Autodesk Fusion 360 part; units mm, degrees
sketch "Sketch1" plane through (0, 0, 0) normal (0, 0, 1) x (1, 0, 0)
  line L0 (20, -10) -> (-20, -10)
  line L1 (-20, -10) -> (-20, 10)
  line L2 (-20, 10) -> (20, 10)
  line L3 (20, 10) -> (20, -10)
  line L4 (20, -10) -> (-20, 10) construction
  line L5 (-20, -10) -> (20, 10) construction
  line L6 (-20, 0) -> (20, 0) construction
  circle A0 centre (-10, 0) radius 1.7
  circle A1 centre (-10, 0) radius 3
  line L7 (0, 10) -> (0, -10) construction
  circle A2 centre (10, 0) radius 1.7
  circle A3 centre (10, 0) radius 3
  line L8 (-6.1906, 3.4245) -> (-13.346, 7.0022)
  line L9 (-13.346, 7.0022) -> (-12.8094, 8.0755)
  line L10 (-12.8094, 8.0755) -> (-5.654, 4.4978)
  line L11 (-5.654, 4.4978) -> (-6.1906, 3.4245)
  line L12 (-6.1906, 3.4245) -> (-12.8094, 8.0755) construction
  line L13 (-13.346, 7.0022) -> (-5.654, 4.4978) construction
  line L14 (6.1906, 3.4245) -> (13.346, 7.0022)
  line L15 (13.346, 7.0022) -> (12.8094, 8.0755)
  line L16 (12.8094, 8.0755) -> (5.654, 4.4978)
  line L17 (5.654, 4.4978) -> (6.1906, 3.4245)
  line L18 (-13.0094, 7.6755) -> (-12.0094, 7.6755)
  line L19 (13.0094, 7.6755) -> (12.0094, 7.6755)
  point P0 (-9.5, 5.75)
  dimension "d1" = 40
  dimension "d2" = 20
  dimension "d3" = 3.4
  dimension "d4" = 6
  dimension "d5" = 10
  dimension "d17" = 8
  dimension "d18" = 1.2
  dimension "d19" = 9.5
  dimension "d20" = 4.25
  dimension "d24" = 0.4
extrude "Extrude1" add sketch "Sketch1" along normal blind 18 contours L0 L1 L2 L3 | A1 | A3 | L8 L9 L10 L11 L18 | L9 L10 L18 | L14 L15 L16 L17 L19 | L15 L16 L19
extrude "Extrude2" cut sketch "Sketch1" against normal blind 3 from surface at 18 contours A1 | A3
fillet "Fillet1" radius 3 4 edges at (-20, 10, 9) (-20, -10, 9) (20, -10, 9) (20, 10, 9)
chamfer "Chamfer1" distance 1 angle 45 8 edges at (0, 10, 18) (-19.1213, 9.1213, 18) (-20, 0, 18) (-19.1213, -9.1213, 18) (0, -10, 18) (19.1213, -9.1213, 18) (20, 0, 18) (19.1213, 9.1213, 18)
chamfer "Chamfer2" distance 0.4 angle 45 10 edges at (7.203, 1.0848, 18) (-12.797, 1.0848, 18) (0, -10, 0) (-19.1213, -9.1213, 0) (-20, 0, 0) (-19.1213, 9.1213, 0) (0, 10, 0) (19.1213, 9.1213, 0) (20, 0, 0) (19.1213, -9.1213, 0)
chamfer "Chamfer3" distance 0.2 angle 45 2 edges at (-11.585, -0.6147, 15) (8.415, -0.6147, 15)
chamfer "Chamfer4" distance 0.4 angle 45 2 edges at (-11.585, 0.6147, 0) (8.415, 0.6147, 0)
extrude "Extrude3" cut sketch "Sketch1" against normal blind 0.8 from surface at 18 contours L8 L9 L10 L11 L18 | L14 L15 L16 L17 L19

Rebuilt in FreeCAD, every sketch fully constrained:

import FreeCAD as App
import Part
import Sketcher

V = App.Vector


def edges_at(feature, points):
    """Names of the edges that pass closest to the given points."""
    edges = feature.Shape.Edges
    near = lambda p: min(range(len(edges)), key=lambda i: edges[i].distToShape(Part.Vertex(*p))[0])
    return sorted({f"Edge{near(p) + 1}" for p in points})


def add_polygon(sketch, points):
    """Adds a closed chain of lines whose ends are joined by coincident constraints."""
    first, n = sketch.GeometryCount, len(points)
    for a, b in zip(points, points[1:] + points[:1]):
        sketch.addGeometry(Part.LineSegment(App.Vector(*a, 0), App.Vector(*b, 0)), False)
    for i in range(n):
        sketch.addConstraint(Sketcher.Constraint("Coincident", first + i, 2, first + (i + 1) % n, 1))

doc = App.newDocument("Part")
body = doc.addObject("PartDesign::Body", "Body")

# Sketch on XY plane
sketch1 = body.newObject("Sketcher::SketchObject", "Sketch")
sketch1.AttachmentSupport = (doc.getObject("XY_Plane"), [""])
sketch1.MapMode = "FlatFace"
add_polygon(sketch1, [(-20, -10), (20, -10), (20, 10), (-20, 10)])  # lines 0-3
sketch1.addGeometry(Part.Circle(V(-10, 0, 0), V(0, 0, 1), 1.7), False)  # 4
sketch1.addGeometry(Part.Circle(V(10, 0, 0), V(0, 0, 1), 1.7), False)  # 5
sketch1.addConstraint([
    Sketcher.Constraint("Horizontal", 0),
    Sketcher.Constraint("Vertical", 1),
    Sketcher.Constraint("Horizontal", 2),
    Sketcher.Constraint("Vertical", 3),
    Sketcher.Constraint("Equal", 4, 5),
    Sketcher.Constraint("Symmetric", 4, 3, 5, 3, -1, 1),
    Sketcher.Constraint("Symmetric", 0, 2, 2, 2, -1, 1),
    Sketcher.Constraint("PointOnObject", 4, 3, -1),
    Sketcher.Constraint("Diameter", 4, 3.4),
    Sketcher.Constraint("DistanceX", 0, 1, 0, 2, 40.0),
    Sketcher.Constraint("DistanceY", 1, 1, 1, 2, 20.0),
    Sketcher.Constraint("DistanceX", 4, 3, -1, 1, 10.0),
])
pad1 = body.newObject("PartDesign::Pad", "Pad")
pad1.Profile = sketch1
pad1.Length = 18

# Sketch on XY plane
sketch2 = body.newObject("Sketcher::SketchObject", "Sketch001")
sketch2.AttachmentSupport = (doc.getObject("XY_Plane"), [""])
sketch2.MapMode = "FlatFace"
sketch2.AttachmentOffset = App.Placement(V(0, 0, 18), App.Rotation())
sketch2.addGeometry([
    Part.Circle(V(-10, 0, 0), V(0, 0, 1), 3),
    Part.Circle(V(-10, 0, 0), V(0, 0, 1), 1.7),
    Part.Circle(V(10, 0, 0), V(0, 0, 1), 3),
    Part.Circle(V(10, 0, 0), V(0, 0, 1), 1.7),
], False)
sketch2.addConstraint([
    Sketcher.Constraint("Coincident", 1, 3, 0, 3),
    Sketcher.Constraint("Coincident", 3, 3, 2, 3),
    Sketcher.Constraint("Equal", 0, 2),
    Sketcher.Constraint("Equal", 1, 3),
    Sketcher.Constraint("Symmetric", 0, 3, 2, 3, -1, 1),
    Sketcher.Constraint("PointOnObject", 0, 3, -1),
    Sketcher.Constraint("Diameter", 0, 6.0),
    Sketcher.Constraint("Diameter", 1, 3.4),
    Sketcher.Constraint("DistanceX", 0, 3, -1, 1, 10.0),
])
pocket1 = body.newObject("PartDesign::Pocket", "Pocket")
pocket1.Profile = sketch2
pocket1.Length = 3
doc.recompute()

fillet = body.newObject("PartDesign::Fillet", "Fillet")
fillet.Base = (pocket1, edges_at(pocket1, [
    (-20, 10, 9),
    (-20, -10, 9),
    (20, -10, 9),
    (20, 10, 9),
]))
fillet.Radius = 3
doc.recompute()

chamfer = body.newObject("PartDesign::Chamfer", "Chamfer")
chamfer.Base = (fillet, edges_at(fillet, [
    (0, 10, 18),
    (-19.121, 9.121, 18),
    (-20, 0, 18),
    (-19.121, -9.121, 18),
    (0, -10, 18),
    (19.121, -9.121, 18),
    (20, 0, 18),
    (19.121, 9.121, 18),
]))
chamfer.Size = 1
doc.recompute()

chamfer2 = body.newObject("PartDesign::Chamfer", "Chamfer001")
chamfer2.Base = (chamfer, edges_at(chamfer, [
    (7.203, 1.085, 18),
    (-12.797, 1.085, 18),
    (0, -10, 0),
    (-19.121, -9.121, 0),
    (-20, 0, 0),
    (-19.121, 9.121, 0),
    (0, 10, 0),
    (19.121, 9.121, 0),
    (20, 0, 0),
    (19.121, -9.121, 0),
]))
chamfer2.Size = 0.4
doc.recompute()

chamfer3 = body.newObject("PartDesign::Chamfer", "Chamfer002")
chamfer3.Base = (chamfer2, edges_at(chamfer2, [(-11.585, -0.615, 15), (8.415, -0.615, 15)]))
chamfer3.Size = 0.2
doc.recompute()

chamfer4 = body.newObject("PartDesign::Chamfer", "Chamfer003")
chamfer4.Base = (chamfer3, edges_at(chamfer3, [(-11.585, 0.615, 0), (8.415, 0.615, 0)]))
chamfer4.Size = 0.4

# Sketch on XY plane
sketch3 = body.newObject("Sketcher::SketchObject", "Sketch002")
sketch3.AttachmentSupport = (doc.getObject("XY_Plane"), [""])
sketch3.MapMode = "FlatFace"
sketch3.AttachmentOffset = App.Placement(V(0, 0, 18), App.Rotation())
add_polygon(sketch3, [(-13.3, 7), (-6.2, 3.4), (-5.7, 4.5), (-12, 7.7), (-13, 7.7)])  # lines 0-4
add_polygon(sketch3, [(5.7, 4.5), (6.2, 3.4), (13.3, 7), (13, 7.7), (12, 7.7)])  # lines 5-9
sketch3.addConstraint([
    Sketcher.Constraint("Horizontal", 3),
    Sketcher.Constraint("Horizontal", 8),
    Sketcher.Constraint("Symmetric", 0, 2, 5, 2, -2),
    Sketcher.Constraint("Symmetric", 4, 2, 6, 2, -2),
    Sketcher.Constraint("Symmetric", 3, 2, 7, 2, -2),
    Sketcher.Constraint("Symmetric", 1, 2, 9, 2, -2),
    Sketcher.Constraint("Perpendicular", 0, 1),
    Sketcher.Constraint("Perpendicular", 1, 2),
    Sketcher.Constraint("Perpendicular", 2, 4),
    Sketcher.Constraint("Perpendicular", 7, 9),
    Sketcher.Constraint("Distance", 0, 8.0),
    Sketcher.Constraint("Distance", 1, 1.2),
    Sketcher.Constraint("DistanceX", 3, 2, 3, 1, 1.0),
    Sketcher.Constraint("DistanceX", 1, 2, 6, 2, 19.0),
    Sketcher.Constraint("DistanceX", 2, 2, 5, 2, 18.2),
    Sketcher.Constraint("DistanceY", -1, 1, 0, 2, 3.4245),
])
pocket2 = body.newObject("PartDesign::Pocket", "Pocket001")
pocket2.Profile = sketch3
pocket2.Length = 0.8

doc.recompute()
